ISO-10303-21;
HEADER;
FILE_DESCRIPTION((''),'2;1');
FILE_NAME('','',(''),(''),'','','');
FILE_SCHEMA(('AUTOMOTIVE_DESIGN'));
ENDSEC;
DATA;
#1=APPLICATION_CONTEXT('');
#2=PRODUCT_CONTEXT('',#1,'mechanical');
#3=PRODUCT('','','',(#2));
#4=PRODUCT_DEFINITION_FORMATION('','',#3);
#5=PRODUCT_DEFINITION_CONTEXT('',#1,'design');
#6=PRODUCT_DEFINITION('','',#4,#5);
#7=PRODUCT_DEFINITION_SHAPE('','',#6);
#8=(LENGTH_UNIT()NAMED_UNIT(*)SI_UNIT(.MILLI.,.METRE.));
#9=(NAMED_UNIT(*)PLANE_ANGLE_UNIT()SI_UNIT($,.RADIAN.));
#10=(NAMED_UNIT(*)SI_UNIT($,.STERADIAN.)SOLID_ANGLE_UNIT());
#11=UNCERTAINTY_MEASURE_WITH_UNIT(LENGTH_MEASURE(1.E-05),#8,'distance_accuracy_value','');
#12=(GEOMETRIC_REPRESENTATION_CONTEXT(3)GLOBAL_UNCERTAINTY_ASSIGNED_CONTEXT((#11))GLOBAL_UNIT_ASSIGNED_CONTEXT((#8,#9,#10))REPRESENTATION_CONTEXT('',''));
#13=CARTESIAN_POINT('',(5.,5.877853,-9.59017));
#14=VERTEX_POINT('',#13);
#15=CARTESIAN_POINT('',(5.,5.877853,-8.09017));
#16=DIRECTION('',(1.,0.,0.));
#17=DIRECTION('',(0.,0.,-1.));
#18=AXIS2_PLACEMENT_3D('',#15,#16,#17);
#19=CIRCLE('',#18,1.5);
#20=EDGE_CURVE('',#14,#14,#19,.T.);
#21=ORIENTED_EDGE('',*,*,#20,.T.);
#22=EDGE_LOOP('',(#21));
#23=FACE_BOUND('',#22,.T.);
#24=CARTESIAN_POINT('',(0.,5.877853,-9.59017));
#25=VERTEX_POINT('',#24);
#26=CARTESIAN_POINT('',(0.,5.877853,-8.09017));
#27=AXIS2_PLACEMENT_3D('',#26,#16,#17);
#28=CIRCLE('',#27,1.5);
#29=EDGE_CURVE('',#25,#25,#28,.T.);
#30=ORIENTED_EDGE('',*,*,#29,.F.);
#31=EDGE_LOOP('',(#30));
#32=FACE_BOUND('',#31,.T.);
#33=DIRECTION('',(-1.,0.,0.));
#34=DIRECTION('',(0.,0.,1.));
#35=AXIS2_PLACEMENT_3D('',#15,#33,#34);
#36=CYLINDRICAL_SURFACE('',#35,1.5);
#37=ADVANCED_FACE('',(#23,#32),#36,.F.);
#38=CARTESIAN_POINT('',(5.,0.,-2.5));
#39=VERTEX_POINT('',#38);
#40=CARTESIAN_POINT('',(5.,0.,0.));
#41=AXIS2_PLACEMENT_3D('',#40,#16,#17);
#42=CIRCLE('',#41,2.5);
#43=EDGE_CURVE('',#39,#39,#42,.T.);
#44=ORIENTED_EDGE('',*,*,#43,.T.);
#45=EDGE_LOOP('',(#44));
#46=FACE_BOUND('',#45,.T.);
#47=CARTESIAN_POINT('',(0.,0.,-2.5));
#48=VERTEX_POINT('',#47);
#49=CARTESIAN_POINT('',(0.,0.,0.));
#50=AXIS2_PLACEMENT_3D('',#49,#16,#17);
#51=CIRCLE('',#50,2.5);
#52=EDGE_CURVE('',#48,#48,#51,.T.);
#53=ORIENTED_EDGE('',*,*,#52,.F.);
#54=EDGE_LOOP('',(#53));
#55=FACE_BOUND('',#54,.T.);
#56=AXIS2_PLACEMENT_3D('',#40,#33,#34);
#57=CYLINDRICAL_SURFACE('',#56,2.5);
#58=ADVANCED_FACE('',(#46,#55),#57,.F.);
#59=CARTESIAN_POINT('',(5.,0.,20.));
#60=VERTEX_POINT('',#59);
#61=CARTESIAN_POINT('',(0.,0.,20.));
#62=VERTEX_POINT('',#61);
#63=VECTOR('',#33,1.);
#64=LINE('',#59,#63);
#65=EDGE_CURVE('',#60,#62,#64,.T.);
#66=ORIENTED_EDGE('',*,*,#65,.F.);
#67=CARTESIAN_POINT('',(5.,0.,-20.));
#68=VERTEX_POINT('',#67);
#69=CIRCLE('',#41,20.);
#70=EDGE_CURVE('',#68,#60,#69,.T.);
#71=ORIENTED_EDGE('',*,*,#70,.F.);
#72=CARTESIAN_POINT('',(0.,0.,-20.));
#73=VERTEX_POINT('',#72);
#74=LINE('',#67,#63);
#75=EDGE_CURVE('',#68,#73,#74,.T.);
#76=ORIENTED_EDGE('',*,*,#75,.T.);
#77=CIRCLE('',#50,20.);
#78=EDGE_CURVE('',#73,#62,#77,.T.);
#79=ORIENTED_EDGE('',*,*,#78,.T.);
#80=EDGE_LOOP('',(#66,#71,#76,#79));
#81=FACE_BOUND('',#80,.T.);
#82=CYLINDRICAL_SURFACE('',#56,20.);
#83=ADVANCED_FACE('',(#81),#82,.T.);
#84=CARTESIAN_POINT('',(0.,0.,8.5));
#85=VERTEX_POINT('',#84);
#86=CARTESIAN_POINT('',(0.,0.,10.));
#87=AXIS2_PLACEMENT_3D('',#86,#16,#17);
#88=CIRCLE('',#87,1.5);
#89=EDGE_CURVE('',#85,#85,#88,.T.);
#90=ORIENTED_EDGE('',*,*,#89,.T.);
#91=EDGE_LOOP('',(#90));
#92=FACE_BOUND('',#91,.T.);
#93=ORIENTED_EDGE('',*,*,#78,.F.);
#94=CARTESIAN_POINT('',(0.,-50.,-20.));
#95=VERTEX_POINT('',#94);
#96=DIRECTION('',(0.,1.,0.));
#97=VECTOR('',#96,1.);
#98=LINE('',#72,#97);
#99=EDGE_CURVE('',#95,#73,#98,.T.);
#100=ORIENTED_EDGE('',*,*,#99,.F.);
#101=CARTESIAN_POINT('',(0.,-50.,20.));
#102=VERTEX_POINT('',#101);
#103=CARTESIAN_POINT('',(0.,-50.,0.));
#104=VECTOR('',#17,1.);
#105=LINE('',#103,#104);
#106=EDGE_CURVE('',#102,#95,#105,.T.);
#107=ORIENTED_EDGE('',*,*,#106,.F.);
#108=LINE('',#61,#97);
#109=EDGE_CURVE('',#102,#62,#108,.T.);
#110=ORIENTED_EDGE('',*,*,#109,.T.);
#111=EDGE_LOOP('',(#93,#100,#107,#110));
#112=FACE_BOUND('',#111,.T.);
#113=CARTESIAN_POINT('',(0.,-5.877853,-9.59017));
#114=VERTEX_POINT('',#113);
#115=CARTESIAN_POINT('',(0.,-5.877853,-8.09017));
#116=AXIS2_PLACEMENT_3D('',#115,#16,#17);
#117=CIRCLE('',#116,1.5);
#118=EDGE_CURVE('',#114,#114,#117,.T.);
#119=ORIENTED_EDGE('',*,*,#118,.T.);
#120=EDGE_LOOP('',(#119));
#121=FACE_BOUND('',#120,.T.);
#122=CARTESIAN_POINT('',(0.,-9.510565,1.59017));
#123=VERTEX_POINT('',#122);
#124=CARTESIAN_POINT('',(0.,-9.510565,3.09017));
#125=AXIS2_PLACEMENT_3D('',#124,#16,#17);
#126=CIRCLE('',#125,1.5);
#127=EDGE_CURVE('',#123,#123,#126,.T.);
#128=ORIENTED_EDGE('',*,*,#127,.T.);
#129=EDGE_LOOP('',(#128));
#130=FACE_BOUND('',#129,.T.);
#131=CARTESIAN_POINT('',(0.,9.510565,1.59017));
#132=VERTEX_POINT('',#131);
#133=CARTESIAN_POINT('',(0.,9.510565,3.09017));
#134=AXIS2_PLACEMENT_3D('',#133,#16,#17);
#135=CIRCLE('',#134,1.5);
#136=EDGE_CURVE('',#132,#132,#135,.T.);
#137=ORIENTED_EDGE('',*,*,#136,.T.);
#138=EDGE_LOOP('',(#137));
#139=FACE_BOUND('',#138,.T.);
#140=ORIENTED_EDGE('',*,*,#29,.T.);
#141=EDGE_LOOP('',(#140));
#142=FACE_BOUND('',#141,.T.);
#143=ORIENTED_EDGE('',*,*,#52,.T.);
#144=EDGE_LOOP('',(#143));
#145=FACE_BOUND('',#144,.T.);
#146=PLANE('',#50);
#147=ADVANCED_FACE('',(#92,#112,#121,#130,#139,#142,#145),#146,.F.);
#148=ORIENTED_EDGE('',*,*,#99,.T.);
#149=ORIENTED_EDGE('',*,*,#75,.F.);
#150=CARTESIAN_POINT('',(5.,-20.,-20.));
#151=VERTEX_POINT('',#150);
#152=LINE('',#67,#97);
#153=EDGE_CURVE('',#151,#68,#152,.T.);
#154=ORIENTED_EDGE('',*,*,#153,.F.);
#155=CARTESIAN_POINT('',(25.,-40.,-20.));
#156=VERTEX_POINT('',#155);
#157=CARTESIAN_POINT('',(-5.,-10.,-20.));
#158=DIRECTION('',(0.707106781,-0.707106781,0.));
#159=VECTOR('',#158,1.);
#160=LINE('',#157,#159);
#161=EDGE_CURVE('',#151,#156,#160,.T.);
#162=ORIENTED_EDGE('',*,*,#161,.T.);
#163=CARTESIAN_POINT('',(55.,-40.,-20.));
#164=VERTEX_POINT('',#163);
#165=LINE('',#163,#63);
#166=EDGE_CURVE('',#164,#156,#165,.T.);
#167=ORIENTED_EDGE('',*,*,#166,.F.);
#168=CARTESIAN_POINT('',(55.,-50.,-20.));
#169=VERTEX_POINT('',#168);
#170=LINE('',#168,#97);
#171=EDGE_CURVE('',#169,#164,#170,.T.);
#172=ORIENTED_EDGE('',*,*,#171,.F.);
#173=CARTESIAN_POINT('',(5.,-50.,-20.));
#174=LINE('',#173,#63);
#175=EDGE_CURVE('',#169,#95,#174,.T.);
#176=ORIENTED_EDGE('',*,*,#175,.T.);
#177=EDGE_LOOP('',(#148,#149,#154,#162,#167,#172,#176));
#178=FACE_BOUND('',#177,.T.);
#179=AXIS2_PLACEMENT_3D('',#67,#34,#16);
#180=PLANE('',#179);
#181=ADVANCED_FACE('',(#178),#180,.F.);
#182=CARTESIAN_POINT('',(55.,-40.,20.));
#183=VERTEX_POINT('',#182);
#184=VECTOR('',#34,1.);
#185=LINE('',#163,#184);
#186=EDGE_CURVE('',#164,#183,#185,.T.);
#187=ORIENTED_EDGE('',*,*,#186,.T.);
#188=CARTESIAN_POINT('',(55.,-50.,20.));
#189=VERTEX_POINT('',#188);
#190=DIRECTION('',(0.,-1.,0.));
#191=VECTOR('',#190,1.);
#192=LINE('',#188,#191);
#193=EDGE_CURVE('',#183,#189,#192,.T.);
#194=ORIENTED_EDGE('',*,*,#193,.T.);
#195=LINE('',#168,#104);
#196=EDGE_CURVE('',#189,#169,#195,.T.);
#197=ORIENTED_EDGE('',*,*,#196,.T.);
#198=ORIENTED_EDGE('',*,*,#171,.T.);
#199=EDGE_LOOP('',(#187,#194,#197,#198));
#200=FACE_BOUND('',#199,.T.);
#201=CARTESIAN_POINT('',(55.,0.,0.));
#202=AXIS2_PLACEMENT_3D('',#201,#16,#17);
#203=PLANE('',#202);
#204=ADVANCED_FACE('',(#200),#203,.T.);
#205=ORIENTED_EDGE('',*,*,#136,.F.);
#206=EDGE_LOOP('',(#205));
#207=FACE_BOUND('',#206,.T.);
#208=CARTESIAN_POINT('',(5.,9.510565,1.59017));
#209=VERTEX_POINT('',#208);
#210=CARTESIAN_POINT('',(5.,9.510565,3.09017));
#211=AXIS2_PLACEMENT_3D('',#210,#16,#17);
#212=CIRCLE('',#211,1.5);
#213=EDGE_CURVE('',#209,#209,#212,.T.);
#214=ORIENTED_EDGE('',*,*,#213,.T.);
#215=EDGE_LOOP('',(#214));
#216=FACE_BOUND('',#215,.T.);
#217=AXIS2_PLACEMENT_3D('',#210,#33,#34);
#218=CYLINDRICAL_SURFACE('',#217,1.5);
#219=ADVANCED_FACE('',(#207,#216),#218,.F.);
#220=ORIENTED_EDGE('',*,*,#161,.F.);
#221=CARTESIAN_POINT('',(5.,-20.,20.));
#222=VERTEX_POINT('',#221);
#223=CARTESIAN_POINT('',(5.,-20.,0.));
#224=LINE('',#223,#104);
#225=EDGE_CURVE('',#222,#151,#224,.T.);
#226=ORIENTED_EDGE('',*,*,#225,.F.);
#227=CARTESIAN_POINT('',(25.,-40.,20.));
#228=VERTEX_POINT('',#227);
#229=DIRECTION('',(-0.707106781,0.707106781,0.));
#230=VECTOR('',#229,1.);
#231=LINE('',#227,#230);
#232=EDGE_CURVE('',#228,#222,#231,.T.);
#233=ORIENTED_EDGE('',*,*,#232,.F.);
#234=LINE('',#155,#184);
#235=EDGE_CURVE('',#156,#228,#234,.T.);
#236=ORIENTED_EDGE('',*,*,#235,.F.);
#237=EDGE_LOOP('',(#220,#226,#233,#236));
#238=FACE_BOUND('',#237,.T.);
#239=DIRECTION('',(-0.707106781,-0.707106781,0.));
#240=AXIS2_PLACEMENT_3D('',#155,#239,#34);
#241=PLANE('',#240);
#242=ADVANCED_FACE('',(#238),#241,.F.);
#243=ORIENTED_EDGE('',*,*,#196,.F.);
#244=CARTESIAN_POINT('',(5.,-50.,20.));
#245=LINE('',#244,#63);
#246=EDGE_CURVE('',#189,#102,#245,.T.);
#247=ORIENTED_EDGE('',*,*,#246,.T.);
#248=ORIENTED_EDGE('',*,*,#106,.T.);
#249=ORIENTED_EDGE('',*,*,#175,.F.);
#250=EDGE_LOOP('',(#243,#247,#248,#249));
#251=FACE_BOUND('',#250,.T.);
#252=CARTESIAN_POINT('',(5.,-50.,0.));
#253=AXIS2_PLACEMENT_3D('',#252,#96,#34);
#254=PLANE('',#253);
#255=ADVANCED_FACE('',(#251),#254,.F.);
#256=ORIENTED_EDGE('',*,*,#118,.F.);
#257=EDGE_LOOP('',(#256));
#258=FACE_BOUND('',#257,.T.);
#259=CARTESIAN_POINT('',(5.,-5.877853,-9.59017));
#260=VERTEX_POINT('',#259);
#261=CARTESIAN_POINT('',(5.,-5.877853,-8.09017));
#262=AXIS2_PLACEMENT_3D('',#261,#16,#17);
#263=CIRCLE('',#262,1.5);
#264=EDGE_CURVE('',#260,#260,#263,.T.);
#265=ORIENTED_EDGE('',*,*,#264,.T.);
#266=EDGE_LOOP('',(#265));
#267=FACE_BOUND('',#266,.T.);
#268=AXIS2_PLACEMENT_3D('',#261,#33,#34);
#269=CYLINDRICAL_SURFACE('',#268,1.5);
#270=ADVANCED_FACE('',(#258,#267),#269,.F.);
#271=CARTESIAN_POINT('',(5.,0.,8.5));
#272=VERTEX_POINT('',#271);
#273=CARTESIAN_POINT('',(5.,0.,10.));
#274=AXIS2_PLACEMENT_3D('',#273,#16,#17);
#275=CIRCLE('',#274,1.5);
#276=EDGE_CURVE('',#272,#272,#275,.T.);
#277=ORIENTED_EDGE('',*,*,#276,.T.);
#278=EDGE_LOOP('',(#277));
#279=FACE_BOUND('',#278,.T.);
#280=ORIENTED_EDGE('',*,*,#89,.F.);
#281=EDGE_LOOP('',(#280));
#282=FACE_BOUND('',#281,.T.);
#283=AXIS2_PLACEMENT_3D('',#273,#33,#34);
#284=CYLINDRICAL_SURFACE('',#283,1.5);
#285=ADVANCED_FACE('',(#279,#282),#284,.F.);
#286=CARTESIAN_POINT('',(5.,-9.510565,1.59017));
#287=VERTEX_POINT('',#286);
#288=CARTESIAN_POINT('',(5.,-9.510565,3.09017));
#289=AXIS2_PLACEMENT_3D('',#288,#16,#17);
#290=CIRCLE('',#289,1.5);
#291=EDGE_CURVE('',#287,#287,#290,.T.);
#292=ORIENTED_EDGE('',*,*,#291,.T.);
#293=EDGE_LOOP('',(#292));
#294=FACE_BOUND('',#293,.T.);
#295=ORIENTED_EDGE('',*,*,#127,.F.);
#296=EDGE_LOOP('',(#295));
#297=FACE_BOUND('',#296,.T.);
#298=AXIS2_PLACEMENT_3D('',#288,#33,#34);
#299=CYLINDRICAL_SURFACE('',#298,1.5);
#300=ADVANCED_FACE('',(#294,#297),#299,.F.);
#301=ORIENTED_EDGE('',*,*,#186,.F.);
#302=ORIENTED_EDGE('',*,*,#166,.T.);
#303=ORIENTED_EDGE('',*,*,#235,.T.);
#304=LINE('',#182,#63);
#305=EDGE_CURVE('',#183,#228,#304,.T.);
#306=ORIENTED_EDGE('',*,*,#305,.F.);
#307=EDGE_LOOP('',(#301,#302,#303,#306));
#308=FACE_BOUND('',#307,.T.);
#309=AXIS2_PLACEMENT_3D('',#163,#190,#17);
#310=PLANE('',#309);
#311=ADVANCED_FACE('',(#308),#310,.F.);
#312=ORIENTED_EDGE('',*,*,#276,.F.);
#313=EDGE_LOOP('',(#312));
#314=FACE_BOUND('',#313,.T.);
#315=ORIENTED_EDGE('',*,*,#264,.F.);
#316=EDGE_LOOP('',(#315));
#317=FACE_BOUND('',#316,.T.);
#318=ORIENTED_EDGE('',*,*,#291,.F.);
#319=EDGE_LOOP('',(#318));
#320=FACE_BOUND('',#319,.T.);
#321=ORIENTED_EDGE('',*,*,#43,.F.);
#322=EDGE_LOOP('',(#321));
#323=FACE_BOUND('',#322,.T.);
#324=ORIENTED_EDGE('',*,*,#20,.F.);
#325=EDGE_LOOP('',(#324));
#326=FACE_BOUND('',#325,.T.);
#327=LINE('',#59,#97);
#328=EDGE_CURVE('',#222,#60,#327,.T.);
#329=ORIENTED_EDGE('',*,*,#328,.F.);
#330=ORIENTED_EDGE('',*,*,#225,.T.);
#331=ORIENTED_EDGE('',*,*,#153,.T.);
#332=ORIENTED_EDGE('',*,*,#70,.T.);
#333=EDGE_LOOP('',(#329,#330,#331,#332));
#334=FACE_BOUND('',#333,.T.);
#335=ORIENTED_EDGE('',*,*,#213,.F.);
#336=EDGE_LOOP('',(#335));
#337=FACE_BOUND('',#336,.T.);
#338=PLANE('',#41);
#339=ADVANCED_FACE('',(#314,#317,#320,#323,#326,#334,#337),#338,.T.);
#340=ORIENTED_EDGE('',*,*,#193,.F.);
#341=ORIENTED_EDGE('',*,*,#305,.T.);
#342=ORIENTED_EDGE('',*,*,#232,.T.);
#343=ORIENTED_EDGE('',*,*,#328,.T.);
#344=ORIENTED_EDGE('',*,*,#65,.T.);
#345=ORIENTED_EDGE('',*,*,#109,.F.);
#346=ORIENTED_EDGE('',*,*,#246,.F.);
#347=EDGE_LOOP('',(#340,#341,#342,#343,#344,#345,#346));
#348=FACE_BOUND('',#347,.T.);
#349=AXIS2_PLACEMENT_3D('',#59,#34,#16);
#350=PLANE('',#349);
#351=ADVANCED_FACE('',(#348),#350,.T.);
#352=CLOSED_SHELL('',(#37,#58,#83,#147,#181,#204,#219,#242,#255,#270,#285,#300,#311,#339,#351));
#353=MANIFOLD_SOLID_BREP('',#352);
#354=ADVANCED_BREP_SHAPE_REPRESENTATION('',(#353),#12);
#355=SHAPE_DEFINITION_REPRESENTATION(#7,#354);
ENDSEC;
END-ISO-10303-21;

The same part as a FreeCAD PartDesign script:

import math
import FreeCAD as App
import Part
import Sketcher

V = App.Vector
Q = App.Units.Quantity


def edges_at(feature, points):
    """Names of the edges that pass closest to the given points."""
    edges = feature.Shape.Edges
    near = lambda p: min(range(len(edges)), key=lambda i: edges[i].distToShape(Part.Vertex(*p))[0])
    return sorted({f"Edge{near(p) + 1}" for p in points})


def add_polygon(sketch, points):
    """Adds a closed chain of lines whose ends are joined by coincident constraints."""
    first, n = sketch.GeometryCount, len(points)
    for a, b in zip(points, points[1:] + points[:1]):
        sketch.addGeometry(Part.LineSegment(App.Vector(*a, 0), App.Vector(*b, 0)), False)
    for i in range(n):
        sketch.addConstraint(Sketcher.Constraint("Coincident", first + i, 2, first + (i + 1) % n, 1))

doc = App.newDocument("Part")
body = doc.addObject("PartDesign::Body", "Body")

# Sketch on YZ plane
sketch1 = body.newObject("Sketcher::SketchObject", "Sketch")
sketch1.AttachmentSupport = (doc.getObject("YZ_Plane"), [""])
sketch1.MapMode = "FlatFace"
sketch1.addGeometry([
    Part.LineSegment(V(0, 20, 0), V(-50, 20, 0)),  # 0
    Part.LineSegment(V(-50, 20, 0), V(-50, -20, 0)),  # 1
    Part.LineSegment(V(-50, -20, 0), V(0, -20, 0)),  # 2
    Part.ArcOfCircle(Part.Circle(V(0, 0, 0), V(0, 0, 1), 20), math.radians(-90), math.radians(90)),  # 3
    Part.Circle(V(-9.5, 3.1, 0), V(0, 0, 1), 1.5),  # 4
    Part.Circle(V(-5.9, -8.1, 0), V(0, 0, 1), 1.5),  # 5
    Part.Circle(V(0, 10, 0), V(0, 0, 1), 1.5),  # 6
    Part.Circle(V(9.5, 3.1, 0), V(0, 0, 1), 1.5),  # 7
    Part.Circle(V(0, 0, 0), V(0, 0, 1), 2.5),  # 8
    Part.Circle(V(5.9, -8.1, 0), V(0, 0, 1), 1.5),  # 9
], False)
sketch1.addConstraint([
    Sketcher.Constraint("Coincident", 0, 2, 1, 1),
    Sketcher.Constraint("Coincident", 1, 2, 2, 1),
    Sketcher.Constraint("Tangent", 2, 2, 3, 1),
    Sketcher.Constraint("Tangent", 3, 2, 0, 1),
    Sketcher.Constraint("Horizontal", 0),
    Sketcher.Constraint("Vertical", 1),
    Sketcher.Constraint("Horizontal", 2),
    Sketcher.Constraint("Coincident", 3, 3, -1, 1),
    Sketcher.Constraint("Coincident", 8, 3, -1, 1),
    Sketcher.Constraint("Equal", 4, 5),
    Sketcher.Constraint("Equal", 5, 6),
    Sketcher.Constraint("Equal", 6, 7),
    Sketcher.Constraint("Equal", 7, 9),
    Sketcher.Constraint("Symmetric", 4, 3, 7, 3, -2),
    Sketcher.Constraint("Symmetric", 5, 3, 9, 3, -2),
    Sketcher.Constraint("PointOnObject", 6, 3, -2),
    Sketcher.Constraint("Diameter", 4, Q("3 mm")),
    Sketcher.Constraint("Diameter", 8, Q("5 mm")),
    Sketcher.Constraint("Radius", 3, Q("20 mm")),
    Sketcher.Constraint("DistanceX", 0, 2, 0, 1, Q("50 mm")),
    Sketcher.Constraint("DistanceY", -1, 1, 6, 3, Q("10 mm")),
    Sketcher.Constraint("DistanceY", -1, 1, 4, 3, Q("3.09017 mm")),
    Sketcher.Constraint("DistanceY", 5, 3, -1, 1, Q("8.09017 mm")),
    Sketcher.Constraint("DistanceX", 4, 3, 7, 3, Q("19.02113 mm")),
    Sketcher.Constraint("DistanceX", 5, 3, -1, 1, Q("5.877853 mm")),
])
pad1 = body.newObject("PartDesign::Pad", "Pad")
pad1.Profile = sketch1
pad1.Length = 5

# Sketch on YZ plane
sketch2 = body.newObject("Sketcher::SketchObject", "Sketch001")
sketch2.AttachmentSupport = (doc.getObject("YZ_Plane"), [""])
sketch2.MapMode = "FlatFace"
sketch2.AttachmentOffset = App.Placement(V(0, 0, 5), App.Rotation())
add_polygon(sketch2, [(-40, 20), (-50, 20), (-50, -20), (-40, -20)])  # lines 0-3
sketch2.addConstraint([
    Sketcher.Constraint("Horizontal", 0),
    Sketcher.Constraint("Vertical", 1),
    Sketcher.Constraint("Horizontal", 2),
    Sketcher.Constraint("Vertical", 3),
    Sketcher.Constraint("DistanceX", 0, 2, 0, 1, Q("10 mm")),
    Sketcher.Constraint("DistanceY", 1, 2, 1, 1, Q("40 mm")),
    Sketcher.Constraint("DistanceX", 0, 2, -1, 1, Q("50 mm")),
    Sketcher.Constraint("DistanceY", -1, 1, 0, 2, Q("20 mm")),
])
pad2 = body.newObject("PartDesign::Pad", "Pad001")
pad2.Profile = sketch2
pad2.Length = 50
doc.recompute()

chamfer = body.newObject("PartDesign::Chamfer", "Chamfer")
chamfer.Base = (pad2, edges_at(pad2, [(5, -40, 0)]))
chamfer.Size = 20

doc.recompute()
